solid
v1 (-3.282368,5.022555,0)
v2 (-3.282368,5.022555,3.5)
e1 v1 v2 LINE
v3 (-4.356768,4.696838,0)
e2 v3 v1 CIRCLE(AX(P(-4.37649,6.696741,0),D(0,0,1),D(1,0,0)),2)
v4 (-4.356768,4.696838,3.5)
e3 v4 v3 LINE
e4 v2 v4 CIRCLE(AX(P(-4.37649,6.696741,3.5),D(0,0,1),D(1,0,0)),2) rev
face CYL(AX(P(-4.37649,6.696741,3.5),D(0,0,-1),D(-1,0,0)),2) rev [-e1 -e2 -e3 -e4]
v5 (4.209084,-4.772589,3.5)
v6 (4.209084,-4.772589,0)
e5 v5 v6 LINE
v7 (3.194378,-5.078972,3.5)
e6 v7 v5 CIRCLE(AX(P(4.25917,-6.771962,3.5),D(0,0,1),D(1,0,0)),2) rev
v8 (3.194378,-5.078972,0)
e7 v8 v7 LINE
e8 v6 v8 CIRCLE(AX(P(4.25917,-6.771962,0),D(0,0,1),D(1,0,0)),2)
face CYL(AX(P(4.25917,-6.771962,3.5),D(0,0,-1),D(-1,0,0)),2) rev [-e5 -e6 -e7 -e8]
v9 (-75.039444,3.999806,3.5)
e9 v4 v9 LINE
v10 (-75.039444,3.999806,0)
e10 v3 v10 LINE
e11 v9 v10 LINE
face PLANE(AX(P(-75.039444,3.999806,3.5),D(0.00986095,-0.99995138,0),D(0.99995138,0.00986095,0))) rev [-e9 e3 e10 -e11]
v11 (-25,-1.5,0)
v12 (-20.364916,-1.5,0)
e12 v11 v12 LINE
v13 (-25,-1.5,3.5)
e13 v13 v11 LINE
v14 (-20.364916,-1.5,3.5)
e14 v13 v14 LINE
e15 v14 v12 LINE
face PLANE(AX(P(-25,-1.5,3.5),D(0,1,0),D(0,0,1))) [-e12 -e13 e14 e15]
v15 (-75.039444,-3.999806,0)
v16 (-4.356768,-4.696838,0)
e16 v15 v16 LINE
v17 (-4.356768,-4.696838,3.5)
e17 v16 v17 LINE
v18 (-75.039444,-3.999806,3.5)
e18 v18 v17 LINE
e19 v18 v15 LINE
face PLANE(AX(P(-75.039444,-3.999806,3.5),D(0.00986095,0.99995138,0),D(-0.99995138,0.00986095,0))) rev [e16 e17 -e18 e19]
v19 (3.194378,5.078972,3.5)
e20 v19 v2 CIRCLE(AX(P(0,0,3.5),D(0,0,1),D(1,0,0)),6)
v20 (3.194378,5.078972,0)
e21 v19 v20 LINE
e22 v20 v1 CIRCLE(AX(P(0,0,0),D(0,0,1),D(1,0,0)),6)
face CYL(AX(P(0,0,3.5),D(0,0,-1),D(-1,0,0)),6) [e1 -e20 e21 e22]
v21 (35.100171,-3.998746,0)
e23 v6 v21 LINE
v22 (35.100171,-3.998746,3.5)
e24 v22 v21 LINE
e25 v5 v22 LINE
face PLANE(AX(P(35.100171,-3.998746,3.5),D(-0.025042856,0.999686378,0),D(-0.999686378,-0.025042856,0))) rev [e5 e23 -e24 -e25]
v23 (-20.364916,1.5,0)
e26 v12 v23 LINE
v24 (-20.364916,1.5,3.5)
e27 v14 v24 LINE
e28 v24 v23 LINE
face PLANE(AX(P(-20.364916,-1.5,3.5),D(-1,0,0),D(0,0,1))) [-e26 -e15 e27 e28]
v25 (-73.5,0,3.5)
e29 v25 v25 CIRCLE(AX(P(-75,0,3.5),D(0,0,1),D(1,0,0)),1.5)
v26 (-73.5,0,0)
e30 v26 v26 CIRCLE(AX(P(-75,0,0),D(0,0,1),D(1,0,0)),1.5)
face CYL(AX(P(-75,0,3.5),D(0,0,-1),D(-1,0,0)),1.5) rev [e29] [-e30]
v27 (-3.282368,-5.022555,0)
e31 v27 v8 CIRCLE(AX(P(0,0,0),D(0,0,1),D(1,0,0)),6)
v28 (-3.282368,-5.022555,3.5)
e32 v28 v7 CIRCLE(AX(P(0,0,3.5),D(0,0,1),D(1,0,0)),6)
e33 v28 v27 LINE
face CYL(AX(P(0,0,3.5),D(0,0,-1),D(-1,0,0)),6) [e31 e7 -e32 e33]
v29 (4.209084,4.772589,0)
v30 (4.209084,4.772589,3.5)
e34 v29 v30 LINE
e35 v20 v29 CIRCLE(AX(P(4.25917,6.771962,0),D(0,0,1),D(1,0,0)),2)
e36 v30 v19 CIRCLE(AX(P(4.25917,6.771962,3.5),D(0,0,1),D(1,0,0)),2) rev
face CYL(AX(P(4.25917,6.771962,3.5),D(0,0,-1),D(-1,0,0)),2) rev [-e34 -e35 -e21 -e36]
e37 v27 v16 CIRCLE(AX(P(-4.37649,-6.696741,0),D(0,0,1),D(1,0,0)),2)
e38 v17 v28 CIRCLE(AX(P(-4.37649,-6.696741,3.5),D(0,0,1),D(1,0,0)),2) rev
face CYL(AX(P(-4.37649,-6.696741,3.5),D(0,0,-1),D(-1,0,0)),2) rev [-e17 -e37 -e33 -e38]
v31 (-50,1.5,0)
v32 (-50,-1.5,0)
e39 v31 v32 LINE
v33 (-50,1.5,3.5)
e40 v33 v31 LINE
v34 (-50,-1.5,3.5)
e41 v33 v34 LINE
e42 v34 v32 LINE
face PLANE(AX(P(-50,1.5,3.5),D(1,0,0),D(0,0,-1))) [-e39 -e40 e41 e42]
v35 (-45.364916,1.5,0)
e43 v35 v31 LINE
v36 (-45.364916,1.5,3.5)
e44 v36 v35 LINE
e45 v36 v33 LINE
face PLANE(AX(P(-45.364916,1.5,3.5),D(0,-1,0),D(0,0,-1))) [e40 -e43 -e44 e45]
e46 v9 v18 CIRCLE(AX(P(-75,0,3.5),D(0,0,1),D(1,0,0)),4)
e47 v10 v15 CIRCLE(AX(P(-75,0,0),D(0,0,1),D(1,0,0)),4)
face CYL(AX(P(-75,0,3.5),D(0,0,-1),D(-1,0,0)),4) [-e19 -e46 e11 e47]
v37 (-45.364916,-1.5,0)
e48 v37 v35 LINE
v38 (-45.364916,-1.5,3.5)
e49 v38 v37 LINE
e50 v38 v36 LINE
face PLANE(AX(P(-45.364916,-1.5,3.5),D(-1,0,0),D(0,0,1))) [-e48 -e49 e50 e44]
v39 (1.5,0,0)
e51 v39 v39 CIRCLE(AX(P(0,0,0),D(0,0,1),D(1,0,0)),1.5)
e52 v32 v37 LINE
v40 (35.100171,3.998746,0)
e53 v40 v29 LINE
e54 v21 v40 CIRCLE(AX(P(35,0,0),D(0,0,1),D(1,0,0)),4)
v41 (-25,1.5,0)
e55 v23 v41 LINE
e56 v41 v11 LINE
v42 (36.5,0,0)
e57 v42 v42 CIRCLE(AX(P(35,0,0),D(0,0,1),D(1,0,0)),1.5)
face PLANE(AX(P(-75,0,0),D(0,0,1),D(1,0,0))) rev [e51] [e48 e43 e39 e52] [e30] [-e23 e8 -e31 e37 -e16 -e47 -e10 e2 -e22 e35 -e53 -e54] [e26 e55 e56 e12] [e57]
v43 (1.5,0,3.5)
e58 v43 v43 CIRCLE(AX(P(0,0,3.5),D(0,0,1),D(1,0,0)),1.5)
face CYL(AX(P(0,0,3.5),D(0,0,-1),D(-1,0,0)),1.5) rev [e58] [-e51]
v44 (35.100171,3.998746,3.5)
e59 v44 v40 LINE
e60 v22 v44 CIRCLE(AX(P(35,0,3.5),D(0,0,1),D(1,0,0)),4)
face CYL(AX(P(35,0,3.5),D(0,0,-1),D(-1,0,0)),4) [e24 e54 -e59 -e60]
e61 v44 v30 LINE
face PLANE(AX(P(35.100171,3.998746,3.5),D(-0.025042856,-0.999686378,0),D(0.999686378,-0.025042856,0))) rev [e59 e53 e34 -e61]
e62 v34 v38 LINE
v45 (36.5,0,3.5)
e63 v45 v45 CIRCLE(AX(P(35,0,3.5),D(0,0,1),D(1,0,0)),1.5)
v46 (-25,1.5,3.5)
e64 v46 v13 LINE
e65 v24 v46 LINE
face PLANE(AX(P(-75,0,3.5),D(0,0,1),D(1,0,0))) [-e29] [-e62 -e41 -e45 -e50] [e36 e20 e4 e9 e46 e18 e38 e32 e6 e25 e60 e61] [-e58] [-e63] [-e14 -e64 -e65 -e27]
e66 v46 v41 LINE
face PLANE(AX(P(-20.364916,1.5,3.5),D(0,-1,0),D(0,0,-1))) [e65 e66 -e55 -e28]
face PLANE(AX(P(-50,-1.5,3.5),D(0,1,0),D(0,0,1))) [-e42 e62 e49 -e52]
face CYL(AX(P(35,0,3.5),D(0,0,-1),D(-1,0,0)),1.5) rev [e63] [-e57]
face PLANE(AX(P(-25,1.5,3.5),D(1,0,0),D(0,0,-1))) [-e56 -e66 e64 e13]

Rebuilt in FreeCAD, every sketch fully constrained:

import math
import FreeCAD as App
import Part
import Sketcher

V = App.Vector
Q = App.Units.Quantity


def edges_at(feature, points):
    """Names of the edges that pass closest to the given points."""
    edges = feature.Shape.Edges
    near = lambda p: min(range(len(edges)), key=lambda i: edges[i].distToShape(Part.Vertex(*p))[0])
    return sorted({f"Edge{near(p) + 1}" for p in points})

doc = App.newDocument("Part")
body = doc.addObject("PartDesign::Body", "Body")

sketch1 = body.newObject("Sketcher::SketchObject", "Sketch")
sketch1.AttachmentSupport = (doc.getObject("XY_Plane"), [""])
sketch1.MapMode = "FlatFace"
sketch1.addGeometry(Part.LineSegment(V(-3.7, 4.7, 0), V(-75, 4, 0)), False)
sketch1.addGeometry(Part.ArcOfCircle(Part.Circle(V(-75, 0, 0), V(0, 0, 1), 4), math.radians(91), math.radians(269)), False)
sketch1.addGeometry(Part.LineSegment(V(-75, -4, 0), V(-3.7, -4.7, 0)), False)
sketch1.addGeometry(Part.ArcOfCircle(Part.Circle(V(0, 0, 0), V(0, 0, 1), 6), math.radians(-128), math.radians(-53)), False)
sketch1.addGeometry(Part.LineSegment(V(3.6, -4.8, 0), V(35.1, -4, 0)), False)
sketch1.addGeometry(Part.ArcOfCircle(Part.Circle(V(35, 0, 0), V(0, 0, 1), 4), math.radians(-89), math.radians(89)), False)
sketch1.addGeometry(Part.LineSegment(V(35.1, 4, 0), V(3.6, 4.8, 0)), False)
sketch1.addGeometry(Part.ArcOfCircle(Part.Circle(V(0, 0, 0), V(0, 0, 1), 6), math.radians(53), math.radians(128)), False)
sketch1.addGeometry(Part.Circle(V(35, 0, 0), V(0, 0, 1), 1.5), False)
sketch1.addGeometry(Part.Circle(V(0, 0, 0), V(0, 0, 1), 1.5), False)
sketch1.addGeometry(Part.LineSegment(V(-25, -1.5, 0), V(-25, 1.5, 0)), False)
sketch1.addGeometry(Part.LineSegment(V(-25, 1.5, 0), V(-20.4, 1.5, 0)), False)
sketch1.addGeometry(Part.LineSegment(V(-20.4, 1.5, 0), V(-20.4, -1.5, 0)), False)
sketch1.addGeometry(Part.LineSegment(V(-20.4, -1.5, 0), V(-25, -1.5, 0)), False)
sketch1.addGeometry(Part.LineSegment(V(-50, -1.5, 0), V(-50, 1.5, 0)), False)
sketch1.addGeometry(Part.LineSegment(V(-50, 1.5, 0), V(-45.4, 1.5, 0)), False)
sketch1.addGeometry(Part.LineSegment(V(-45.4, 1.5, 0), V(-45.4, -1.5, 0)), False)
sketch1.addGeometry(Part.LineSegment(V(-45.4, -1.5, 0), V(-50, -1.5, 0)), False)
sketch1.addGeometry(Part.Circle(V(-75, 0, 0), V(0, 0, 1), 1.5), False)
sketch1.addConstraint(Sketcher.Constraint("Tangent", 0, 2, 1, 1))
sketch1.addConstraint(Sketcher.Constraint("Tangent", 1, 2, 2, 1))
sketch1.addConstraint(Sketcher.Constraint("Coincident", 2, 2, 3, 1))
sketch1.addConstraint(Sketcher.Constraint("Coincident", 3, 2, 4, 1))
sketch1.addConstraint(Sketcher.Constraint("Tangent", 4, 2, 5, 1))
sketch1.addConstraint(Sketcher.Constraint("Tangent", 5, 2, 6, 1))
sketch1.addConstraint(Sketcher.Constraint("Coincident", 6, 2, 7, 1))
sketch1.addConstraint(Sketcher.Constraint("Coincident", 7, 2, 0, 1))
sketch1.addConstraint(Sketcher.Constraint("Coincident", 10, 2, 11, 1))
sketch1.addConstraint(Sketcher.Constraint("Coincident", 11, 2, 12, 1))
sketch1.addConstraint(Sketcher.Constraint("Coincident", 12, 2, 13, 1))
sketch1.addConstraint(Sketcher.Constraint("Coincident", 13, 2, 10, 1))
sketch1.addConstraint(Sketcher.Constraint("Coincident", 14, 2, 15, 1))
sketch1.addConstraint(Sketcher.Constraint("Coincident", 15, 2, 16, 1))
sketch1.addConstraint(Sketcher.Constraint("Coincident", 16, 2, 17, 1))
sketch1.addConstraint(Sketcher.Constraint("Coincident", 17, 2, 14, 1))
sketch1.addConstraint(Sketcher.Constraint("Vertical", 10))
sketch1.addConstraint(Sketcher.Constraint("Horizontal", 11))
sketch1.addConstraint(Sketcher.Constraint("Vertical", 12))
sketch1.addConstraint(Sketcher.Constraint("Horizontal", 13))
sketch1.addConstraint(Sketcher.Constraint("Vertical", 14))
sketch1.addConstraint(Sketcher.Constraint("Horizontal", 15))
sketch1.addConstraint(Sketcher.Constraint("Vertical", 16))
sketch1.addConstraint(Sketcher.Constraint("Horizontal", 17))
sketch1.addConstraint(Sketcher.Constraint("Coincident", 3, 3, -1, 1))
sketch1.addConstraint(Sketcher.Constraint("Coincident", 7, 3, -1, 1))
sketch1.addConstraint(Sketcher.Constraint("Coincident", 9, 3, -1, 1))
sketch1.addConstraint(Sketcher.Constraint("Coincident", 8, 3, 5, 3))
sketch1.addConstraint(Sketcher.Constraint("Coincident", 18, 3, 1, 3))
sketch1.addConstraint(Sketcher.Constraint("Equal", 1, 5))
sketch1.addConstraint(Sketcher.Constraint("Equal", 3, 7))
sketch1.addConstraint(Sketcher.Constraint("Equal", 8, 9))
sketch1.addConstraint(Sketcher.Constraint("Equal", 9, 18))
sketch1.addConstraint(Sketcher.Constraint("Symmetric", 0, 2, 1, 2, -1))
sketch1.addConstraint(Sketcher.Constraint("Symmetric", 4, 2, 5, 2, -1))
sketch1.addConstraint(Sketcher.Constraint("Horizontal", 11, 2, 14, 2))
sketch1.addConstraint(Sketcher.Constraint("Horizontal", 13, 2, 16, 2))
sketch1.addConstraint(Sketcher.Constraint("Equal", 13, 15))
sketch1.addConstraint(Sketcher.Constraint("Diameter", 8, Q("3 mm")))
sketch1.addConstraint(Sketcher.Constraint("Radius", 1, Q("4 mm")))
sketch1.addConstraint(Sketcher.Constraint("Radius", 3, Q("6 mm")))
sketch1.addConstraint(Sketcher.Constraint("DistanceY", 10, 1, 10, 2, Q("3 mm")))
sketch1.addConstraint(Sketcher.Constraint("DistanceX", 1, 3, -1, 1, Q("75 mm")))
sketch1.addConstraint(Sketcher.Constraint("DistanceX", -1, 1, 5, 3, Q("35 mm")))
sketch1.addConstraint(Sketcher.Constraint("DistanceX", 10, 2, -1, 1, Q("25 mm")))
sketch1.addConstraint(Sketcher.Constraint("DistanceX", 14, 2, -1, 1, Q("50 mm")))
sketch1.addConstraint(Sketcher.Constraint("DistanceY", -1, 1, 10, 2, Q("1.5 mm")))
sketch1.addConstraint(Sketcher.Constraint("DistanceX", -1, 1, 3, 2, Q("3.616701 mm")))
sketch1.addConstraint(Sketcher.Constraint("Distance", 0, Q("71.31716 mm")))
sketch1.addConstraint(Sketcher.Constraint("DistanceX", 11, 1, 11, 2, Q("4.635084 mm")))
pad1 = body.newObject("PartDesign::Pad", "Pad")
pad1.Profile = sketch1
pad1.Length = 3.5
doc.recompute()

fillet = body.newObject("PartDesign::Fillet", "Fillet")
fillet.Base = (pad1, edges_at(pad1, [
    (-3.726, 4.703, 1.75),
    (3.617, 4.787, 1.75),
    (3.617, -4.787, 1.75),
    (-3.726, -4.703, 1.75),
]))
fillet.Radius = 2

doc.recompute()
